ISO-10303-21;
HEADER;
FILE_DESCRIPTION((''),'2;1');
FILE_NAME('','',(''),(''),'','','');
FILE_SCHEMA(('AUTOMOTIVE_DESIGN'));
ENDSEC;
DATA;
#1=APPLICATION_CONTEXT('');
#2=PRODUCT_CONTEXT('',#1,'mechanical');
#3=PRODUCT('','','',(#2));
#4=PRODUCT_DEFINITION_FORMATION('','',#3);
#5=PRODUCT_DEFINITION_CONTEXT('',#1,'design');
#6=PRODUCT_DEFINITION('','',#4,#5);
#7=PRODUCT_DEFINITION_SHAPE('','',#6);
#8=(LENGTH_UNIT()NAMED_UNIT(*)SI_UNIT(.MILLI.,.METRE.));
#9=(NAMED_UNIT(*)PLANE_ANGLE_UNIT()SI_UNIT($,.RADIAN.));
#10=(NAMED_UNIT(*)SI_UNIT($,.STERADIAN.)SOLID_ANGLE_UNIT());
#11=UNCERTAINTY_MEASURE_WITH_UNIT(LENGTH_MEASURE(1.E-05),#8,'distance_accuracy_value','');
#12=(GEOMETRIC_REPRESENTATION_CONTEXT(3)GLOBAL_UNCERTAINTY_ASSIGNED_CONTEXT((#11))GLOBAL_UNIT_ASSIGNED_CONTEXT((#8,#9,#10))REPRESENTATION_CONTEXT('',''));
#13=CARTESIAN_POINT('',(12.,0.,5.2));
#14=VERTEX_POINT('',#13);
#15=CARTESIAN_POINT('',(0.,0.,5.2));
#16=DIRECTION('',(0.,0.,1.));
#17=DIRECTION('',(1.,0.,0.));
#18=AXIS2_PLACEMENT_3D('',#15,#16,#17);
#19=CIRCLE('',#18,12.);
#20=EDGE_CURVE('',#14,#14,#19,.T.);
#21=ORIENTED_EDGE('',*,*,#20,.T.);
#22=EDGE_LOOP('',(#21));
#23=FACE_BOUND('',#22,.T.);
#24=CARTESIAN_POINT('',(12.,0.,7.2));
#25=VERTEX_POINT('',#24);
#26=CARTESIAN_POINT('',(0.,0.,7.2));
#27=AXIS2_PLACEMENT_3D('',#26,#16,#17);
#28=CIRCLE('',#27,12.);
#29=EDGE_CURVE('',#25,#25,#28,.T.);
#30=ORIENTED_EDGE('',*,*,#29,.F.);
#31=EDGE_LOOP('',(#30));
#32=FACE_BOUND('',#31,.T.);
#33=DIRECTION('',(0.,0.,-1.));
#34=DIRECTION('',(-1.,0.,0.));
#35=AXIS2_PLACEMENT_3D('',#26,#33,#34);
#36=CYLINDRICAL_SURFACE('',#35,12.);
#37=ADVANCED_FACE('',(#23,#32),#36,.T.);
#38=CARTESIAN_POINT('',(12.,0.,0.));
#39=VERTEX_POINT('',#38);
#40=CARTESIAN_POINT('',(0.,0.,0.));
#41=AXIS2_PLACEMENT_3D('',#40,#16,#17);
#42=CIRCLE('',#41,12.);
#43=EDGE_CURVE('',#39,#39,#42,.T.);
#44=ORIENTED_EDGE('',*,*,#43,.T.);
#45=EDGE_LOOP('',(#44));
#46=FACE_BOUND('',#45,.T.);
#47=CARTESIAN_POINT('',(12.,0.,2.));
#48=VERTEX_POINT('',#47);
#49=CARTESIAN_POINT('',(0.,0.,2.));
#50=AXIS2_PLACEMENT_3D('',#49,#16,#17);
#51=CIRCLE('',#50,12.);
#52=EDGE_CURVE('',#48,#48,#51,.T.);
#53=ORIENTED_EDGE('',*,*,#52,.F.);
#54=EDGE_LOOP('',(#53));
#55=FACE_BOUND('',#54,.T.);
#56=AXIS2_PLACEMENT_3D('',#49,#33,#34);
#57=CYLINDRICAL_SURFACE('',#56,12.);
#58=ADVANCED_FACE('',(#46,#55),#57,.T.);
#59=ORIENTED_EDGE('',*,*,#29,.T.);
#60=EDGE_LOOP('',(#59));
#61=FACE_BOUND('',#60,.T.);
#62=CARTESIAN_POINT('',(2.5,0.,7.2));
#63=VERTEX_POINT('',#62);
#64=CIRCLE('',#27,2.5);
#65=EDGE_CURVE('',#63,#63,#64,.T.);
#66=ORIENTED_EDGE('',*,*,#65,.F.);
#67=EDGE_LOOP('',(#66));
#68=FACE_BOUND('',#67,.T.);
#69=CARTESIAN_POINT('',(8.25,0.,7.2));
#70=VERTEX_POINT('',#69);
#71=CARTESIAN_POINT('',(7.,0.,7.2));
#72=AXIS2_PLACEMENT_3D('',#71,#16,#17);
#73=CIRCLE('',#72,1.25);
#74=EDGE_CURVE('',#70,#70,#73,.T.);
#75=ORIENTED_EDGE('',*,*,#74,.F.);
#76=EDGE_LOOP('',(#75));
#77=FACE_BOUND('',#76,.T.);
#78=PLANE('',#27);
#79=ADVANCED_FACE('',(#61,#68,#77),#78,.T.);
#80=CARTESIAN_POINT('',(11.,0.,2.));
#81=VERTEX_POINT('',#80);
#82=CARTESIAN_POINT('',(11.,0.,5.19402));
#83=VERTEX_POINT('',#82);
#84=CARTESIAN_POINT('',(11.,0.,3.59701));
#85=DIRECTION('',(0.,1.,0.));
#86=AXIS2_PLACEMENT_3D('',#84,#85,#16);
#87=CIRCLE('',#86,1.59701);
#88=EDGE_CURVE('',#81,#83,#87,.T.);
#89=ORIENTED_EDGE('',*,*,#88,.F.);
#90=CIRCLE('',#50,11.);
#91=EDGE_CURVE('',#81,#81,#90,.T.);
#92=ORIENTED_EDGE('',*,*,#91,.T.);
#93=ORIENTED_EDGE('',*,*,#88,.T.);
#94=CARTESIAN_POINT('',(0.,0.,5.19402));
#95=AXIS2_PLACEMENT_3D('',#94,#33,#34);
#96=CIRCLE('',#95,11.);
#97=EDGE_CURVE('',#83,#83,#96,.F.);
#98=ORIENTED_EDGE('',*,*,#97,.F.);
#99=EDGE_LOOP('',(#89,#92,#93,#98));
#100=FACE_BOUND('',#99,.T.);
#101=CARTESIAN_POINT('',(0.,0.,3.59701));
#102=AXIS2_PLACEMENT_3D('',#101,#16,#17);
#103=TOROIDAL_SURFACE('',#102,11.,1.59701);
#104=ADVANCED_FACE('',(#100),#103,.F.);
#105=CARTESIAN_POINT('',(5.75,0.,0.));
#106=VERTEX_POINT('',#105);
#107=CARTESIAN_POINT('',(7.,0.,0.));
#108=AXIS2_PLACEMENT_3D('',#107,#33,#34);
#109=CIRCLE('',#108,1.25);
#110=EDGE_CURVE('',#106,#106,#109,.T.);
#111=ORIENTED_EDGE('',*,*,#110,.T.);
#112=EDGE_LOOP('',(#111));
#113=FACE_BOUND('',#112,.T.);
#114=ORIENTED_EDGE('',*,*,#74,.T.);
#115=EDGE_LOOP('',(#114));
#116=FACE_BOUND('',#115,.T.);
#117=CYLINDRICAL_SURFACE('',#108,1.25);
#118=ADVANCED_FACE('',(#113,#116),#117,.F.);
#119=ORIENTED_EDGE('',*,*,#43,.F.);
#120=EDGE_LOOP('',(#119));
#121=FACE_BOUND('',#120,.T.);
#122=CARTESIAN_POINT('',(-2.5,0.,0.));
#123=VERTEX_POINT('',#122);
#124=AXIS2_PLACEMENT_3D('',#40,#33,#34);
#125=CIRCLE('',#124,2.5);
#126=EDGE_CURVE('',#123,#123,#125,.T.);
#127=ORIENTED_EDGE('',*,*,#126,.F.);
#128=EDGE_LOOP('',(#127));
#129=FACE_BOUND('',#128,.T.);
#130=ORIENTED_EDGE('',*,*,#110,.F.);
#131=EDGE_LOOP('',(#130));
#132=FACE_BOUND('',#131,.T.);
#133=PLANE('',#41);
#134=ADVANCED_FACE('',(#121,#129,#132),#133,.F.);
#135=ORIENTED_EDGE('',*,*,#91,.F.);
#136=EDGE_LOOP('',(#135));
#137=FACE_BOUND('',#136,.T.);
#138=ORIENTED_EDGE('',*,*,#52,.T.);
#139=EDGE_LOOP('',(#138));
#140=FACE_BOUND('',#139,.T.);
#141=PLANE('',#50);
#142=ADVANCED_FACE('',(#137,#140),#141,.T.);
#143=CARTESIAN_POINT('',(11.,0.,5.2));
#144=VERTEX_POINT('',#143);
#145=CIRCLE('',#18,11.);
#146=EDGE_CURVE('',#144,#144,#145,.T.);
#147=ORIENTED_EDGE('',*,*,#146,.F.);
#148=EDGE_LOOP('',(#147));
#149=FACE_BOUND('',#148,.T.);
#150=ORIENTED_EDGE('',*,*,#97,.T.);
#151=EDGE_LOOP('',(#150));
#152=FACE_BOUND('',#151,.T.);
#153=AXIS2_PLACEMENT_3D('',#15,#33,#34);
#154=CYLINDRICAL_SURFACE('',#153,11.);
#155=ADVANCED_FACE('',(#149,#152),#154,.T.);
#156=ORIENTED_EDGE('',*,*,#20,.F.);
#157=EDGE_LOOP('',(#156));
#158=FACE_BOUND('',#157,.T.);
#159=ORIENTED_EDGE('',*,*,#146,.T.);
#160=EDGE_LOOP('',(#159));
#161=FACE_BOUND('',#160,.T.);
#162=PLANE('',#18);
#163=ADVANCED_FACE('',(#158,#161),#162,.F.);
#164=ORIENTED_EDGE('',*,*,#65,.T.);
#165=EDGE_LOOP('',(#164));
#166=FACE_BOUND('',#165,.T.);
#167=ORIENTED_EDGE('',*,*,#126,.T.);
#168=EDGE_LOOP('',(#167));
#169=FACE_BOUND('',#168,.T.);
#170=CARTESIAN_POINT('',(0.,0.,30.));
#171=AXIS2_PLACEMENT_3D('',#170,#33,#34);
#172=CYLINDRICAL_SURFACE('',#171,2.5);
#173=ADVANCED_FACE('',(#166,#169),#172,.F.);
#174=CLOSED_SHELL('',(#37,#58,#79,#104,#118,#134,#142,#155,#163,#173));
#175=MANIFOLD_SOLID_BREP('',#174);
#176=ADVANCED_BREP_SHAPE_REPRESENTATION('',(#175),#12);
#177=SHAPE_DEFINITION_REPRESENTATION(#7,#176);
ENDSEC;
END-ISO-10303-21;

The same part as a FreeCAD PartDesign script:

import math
import FreeCAD as App
import Part
import Sketcher
from FreeCAD import Vector

doc = App.newDocument("Part")
body = doc.addObject("PartDesign::Body", "Body")

# Sketch on XY plane
sketch1 = doc.addObject("Sketcher::SketchObject", "Sketch")
body.addObject(sketch1)
sketch1.AttachmentSupport = (doc.XY_Plane, [""])
sketch1.MapMode = "FlatFace"
sketch1.addGeometry(Part.Circle(Vector(0, 0, 0), Vector(0, 0, 1), 12), False)
sketch1.addConstraint(Sketcher.Constraint("Coincident", 0, 3, -1, 1))
sketch1.addConstraint(Sketcher.Constraint("Diameter", 0, 24.0))
pad1 = doc.addObject("PartDesign::Pad", "Pad")
body.addObject(pad1)
pad1.Profile = sketch1
pad1.Length = 2

# Sketch on XY plane
sketch2 = doc.addObject("Sketcher::SketchObject", "Sketch001")
body.addObject(sketch2)
sketch2.AttachmentSupport = (doc.XY_Plane, [""])
sketch2.MapMode = "FlatFace"
sketch2.AttachmentOffset = App.Placement(Vector(0, 0, 2), App.Rotation())
sketch2.addGeometry(Part.Circle(Vector(0, 0, 0), Vector(0, 0, 1), 11), False)
sketch2.addConstraint(Sketcher.Constraint("Coincident", 0, 3, -1, 1))
sketch2.addConstraint(Sketcher.Constraint("Diameter", 0, 22.0))
pad2 = doc.addObject("PartDesign::Pad", "Pad001")
body.addObject(pad2)
pad2.Profile = sketch2
pad2.Length = 3.2

# Sketch on XY plane
sketch3 = doc.addObject("Sketcher::SketchObject", "Sketch002")
body.addObject(sketch3)
sketch3.AttachmentSupport = (doc.XY_Plane, [""])
sketch3.MapMode = "FlatFace"
sketch3.AttachmentOffset = App.Placement(Vector(0, 0, 5.2), App.Rotation())
sketch3.addGeometry(Part.Circle(Vector(0, 0, 0), Vector(0, 0, 1), 12), False)
sketch3.addConstraint(Sketcher.Constraint("Coincident", 0, 3, -1, 1))
sketch3.addConstraint(Sketcher.Constraint("Diameter", 0, 24.0))
pad3 = doc.addObject("PartDesign::Pad", "Pad002")
body.addObject(pad3)
pad3.Profile = sketch3
pad3.Length = 2

# Sketch on XY plane
sketch4 = doc.addObject("Sketcher::SketchObject", "Sketch003")
body.addObject(sketch4)
sketch4.AttachmentSupport = (doc.XY_Plane, [""])
sketch4.MapMode = "FlatFace"
sketch4.addGeometry(Part.Circle(Vector(0, 0, 0), Vector(0, 0, 1), 2.5), False)
sketch4.addConstraint(Sketcher.Constraint("Coincident", 0, 3, -1, 1))
sketch4.addConstraint(Sketcher.Constraint("Diameter", 0, 5.0))
pocket1 = doc.addObject("PartDesign::Pocket", "Pocket")
body.addObject(pocket1)
pocket1.Profile = sketch4
pocket1.Length = 30
pocket1.Reversed = True

# Sketch on XZ plane
sketch5 = doc.addObject("Sketcher::SketchObject", "Sketch004")
body.addObject(sketch5)
sketch5.AttachmentSupport = (doc.XZ_Plane, [""])
sketch5.MapMode = "FlatFace"
sketch5.addGeometry(Part.Circle(Vector(11, 3.6, 0), Vector(0, 0, 1), 1.6), False)
sketch5.addConstraint(Sketcher.Constraint("DistanceX", -1, 1, 0, 3, 11.0))
sketch5.addConstraint(Sketcher.Constraint("Diameter", 0, 3.19402))
sketch5.addConstraint(Sketcher.Constraint("DistanceY", -1, 1, 0, 3, 3.59701))

# Sketch on XY plane
sketch6 = doc.addObject("Sketcher::SketchObject", "Sketch005")
body.addObject(sketch6)
sketch6.AttachmentSupport = (doc.XY_Plane, [""])
sketch6.MapMode = "FlatFace"
sketch6.AttachmentOffset = App.Placement(Vector(0, 0, 5.2), App.Rotation())
sketch6.addGeometry(Part.ArcOfCircle(Part.Circle(Vector(0, 0, 0), Vector(0, 0, 1), 11), math.radians(0), math.radians(90)), False)
sketch6.addGeometry(Part.ArcOfCircle(Part.Circle(Vector(0, 0, 0), Vector(0, 0, 1), 11), math.radians(90), math.radians(180)), False)
sketch6.addGeometry(Part.ArcOfCircle(Part.Circle(Vector(0, 0, 0), Vector(0, 0, 1), 11), math.radians(180), math.radians(270)), False)
sketch6.addGeometry(Part.ArcOfCircle(Part.Circle(Vector(0, 0, 0), Vector(0, 0, 1), 11), math.radians(-90), math.radians(0)), False)
sketch6.addConstraint(Sketcher.Constraint("Tangent", 0, 2, 1, 1))
sketch6.addConstraint(Sketcher.Constraint("Tangent", 1, 2, 2, 1))
sketch6.addConstraint(Sketcher.Constraint("Tangent", 2, 2, 3, 1))
sketch6.addConstraint(Sketcher.Constraint("Tangent", 3, 2, 0, 1))
sketch6.addConstraint(Sketcher.Constraint("Coincident", 0, 3, -1, 1))
sketch6.addConstraint(Sketcher.Constraint("Equal", 0, 1))
sketch6.addConstraint(Sketcher.Constraint("PointOnObject", 0, 2, -2))
sketch6.addConstraint(Sketcher.Constraint("PointOnObject", 1, 2, -1))
sketch6.addConstraint(Sketcher.Constraint("PointOnObject", 2, 2, -2))
sketch6.addConstraint(Sketcher.Constraint("PointOnObject", 3, 2, -1))
sketch6.addConstraint(Sketcher.Constraint("Radius", 0, 11.0))
doc.recompute()

subtractivepipe = doc.addObject("PartDesign::SubtractivePipe", "SubtractivePipe")
body.addObject(subtractivepipe)
subtractivepipe.Profile = sketch5
subtractivepipe.Spine = (sketch6, ["Edge1", "Edge2", "Edge3", "Edge4"])

# Sketch on XY plane
sketch7 = doc.addObject("Sketcher::SketchObject", "Sketch006")
body.addObject(sketch7)
sketch7.AttachmentSupport = (doc.XY_Plane, [""])
sketch7.MapMode = "FlatFace"
sketch7.addGeometry(Part.Circle(Vector(7, 0, 0), Vector(0, 0, 1), 1.2), False)
sketch7.addConstraint(Sketcher.Constraint("PointOnObject", 0, 3, -1))
sketch7.addConstraint(Sketcher.Constraint("Diameter", 0, 2.5))
sketch7.addConstraint(Sketcher.Constraint("DistanceX", -1, 1, 0, 3, 7.0))
doc.recompute()
hole = doc.addObject("PartDesign::Hole", "Hole")
body.addObject(hole)
hole.Profile = sketch7
hole.ThreadType = "None"
hole.Diameter = 2.5
hole.DepthType = "Dimension"
hole.Depth = 8.5
hole.DrillPoint = "Angled"
hole.DrillPointAngle = 118
hole.Reversed = True

doc.recompute()
